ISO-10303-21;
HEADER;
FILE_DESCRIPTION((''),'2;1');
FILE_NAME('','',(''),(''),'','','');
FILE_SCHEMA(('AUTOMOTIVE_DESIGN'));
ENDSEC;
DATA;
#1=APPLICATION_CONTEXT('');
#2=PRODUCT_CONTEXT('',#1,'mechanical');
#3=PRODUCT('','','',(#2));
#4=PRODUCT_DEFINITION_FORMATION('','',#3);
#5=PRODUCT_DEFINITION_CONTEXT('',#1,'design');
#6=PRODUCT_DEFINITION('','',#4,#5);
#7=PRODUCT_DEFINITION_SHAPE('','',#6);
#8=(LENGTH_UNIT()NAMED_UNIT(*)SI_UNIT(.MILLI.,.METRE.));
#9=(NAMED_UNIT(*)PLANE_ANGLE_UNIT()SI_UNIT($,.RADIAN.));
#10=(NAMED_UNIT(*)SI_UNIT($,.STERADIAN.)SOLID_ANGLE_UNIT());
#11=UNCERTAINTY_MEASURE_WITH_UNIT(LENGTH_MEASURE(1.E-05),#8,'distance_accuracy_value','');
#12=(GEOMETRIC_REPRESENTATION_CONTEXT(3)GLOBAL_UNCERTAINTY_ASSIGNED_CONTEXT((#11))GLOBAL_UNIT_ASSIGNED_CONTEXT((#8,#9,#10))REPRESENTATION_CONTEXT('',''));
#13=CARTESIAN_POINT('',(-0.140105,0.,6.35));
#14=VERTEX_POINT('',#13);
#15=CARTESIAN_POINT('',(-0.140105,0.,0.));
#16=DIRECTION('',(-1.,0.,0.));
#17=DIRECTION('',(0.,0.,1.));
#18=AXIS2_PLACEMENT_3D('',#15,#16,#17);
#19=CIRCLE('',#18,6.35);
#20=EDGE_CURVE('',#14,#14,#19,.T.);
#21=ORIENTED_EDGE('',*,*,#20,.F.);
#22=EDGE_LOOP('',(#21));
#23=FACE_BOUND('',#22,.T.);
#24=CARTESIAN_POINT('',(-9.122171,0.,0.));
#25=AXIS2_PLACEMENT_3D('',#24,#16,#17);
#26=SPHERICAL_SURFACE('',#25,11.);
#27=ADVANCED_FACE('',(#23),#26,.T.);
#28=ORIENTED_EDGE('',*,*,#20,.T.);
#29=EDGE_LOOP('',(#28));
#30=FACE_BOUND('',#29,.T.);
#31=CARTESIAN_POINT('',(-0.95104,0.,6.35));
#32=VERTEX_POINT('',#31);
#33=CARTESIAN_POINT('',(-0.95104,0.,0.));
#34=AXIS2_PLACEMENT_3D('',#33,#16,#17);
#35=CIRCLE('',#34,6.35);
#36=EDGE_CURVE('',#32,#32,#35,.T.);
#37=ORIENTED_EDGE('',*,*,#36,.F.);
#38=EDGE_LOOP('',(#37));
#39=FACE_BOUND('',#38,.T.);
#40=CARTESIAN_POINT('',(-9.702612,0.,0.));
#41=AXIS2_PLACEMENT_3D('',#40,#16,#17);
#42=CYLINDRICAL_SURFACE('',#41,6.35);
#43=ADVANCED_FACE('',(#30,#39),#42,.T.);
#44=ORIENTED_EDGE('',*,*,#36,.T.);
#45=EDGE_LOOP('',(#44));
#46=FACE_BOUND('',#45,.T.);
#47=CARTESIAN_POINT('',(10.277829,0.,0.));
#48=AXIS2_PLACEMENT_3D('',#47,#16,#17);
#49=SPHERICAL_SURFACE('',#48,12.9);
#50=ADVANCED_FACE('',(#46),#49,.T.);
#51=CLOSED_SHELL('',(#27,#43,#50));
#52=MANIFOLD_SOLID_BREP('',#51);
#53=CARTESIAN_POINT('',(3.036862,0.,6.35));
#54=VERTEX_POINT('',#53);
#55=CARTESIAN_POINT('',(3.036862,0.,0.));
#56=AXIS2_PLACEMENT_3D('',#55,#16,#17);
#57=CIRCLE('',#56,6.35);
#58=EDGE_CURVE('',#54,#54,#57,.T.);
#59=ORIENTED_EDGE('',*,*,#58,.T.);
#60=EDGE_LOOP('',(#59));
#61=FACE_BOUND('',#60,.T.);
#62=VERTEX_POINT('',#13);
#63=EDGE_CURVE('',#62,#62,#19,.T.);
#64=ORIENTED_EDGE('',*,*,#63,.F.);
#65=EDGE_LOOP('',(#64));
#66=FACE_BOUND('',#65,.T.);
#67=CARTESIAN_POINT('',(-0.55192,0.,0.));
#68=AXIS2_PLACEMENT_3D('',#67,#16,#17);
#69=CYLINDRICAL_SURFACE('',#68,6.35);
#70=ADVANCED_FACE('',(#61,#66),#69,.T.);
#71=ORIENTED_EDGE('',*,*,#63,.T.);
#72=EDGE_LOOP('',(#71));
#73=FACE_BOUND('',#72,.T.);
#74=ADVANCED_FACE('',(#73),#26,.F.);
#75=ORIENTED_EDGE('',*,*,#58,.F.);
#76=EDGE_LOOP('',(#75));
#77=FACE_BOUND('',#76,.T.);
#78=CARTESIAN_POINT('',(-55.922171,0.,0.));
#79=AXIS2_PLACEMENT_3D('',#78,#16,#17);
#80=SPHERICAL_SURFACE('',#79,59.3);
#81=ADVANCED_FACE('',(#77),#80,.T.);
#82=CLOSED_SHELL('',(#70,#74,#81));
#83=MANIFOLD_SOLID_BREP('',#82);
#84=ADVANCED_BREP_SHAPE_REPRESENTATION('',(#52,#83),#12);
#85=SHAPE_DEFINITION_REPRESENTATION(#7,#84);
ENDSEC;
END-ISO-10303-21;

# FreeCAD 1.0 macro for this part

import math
import FreeCAD as App
import Part
import Sketcher

V = App.Vector
Q = App.Units.Quantity

doc = App.newDocument("Part")
body = doc.addObject("PartDesign::Body", "Body")

sketch1 = body.newObject("Sketcher::SketchObject", "Sketch")
sketch1.AttachmentSupport = (doc.getObject("XZ_Plane"), [""])
sketch1.MapMode = "FlatFace"
sketch1.addGeometry([
    Part.ArcOfCircle(Part.Circle(V(10.3, 0, 0), V(0, 0, 1), 12.9), math.radians(180), math.radians(209)),
    Part.LineSegment(V(-2.6, 0, 0), V(1.9, 0, 0)),
    Part.ArcOfCircle(Part.Circle(V(-9.1, 0, 0), V(0, 0, 1), 11), math.radians(-35), math.radians(0)),
    Part.LineSegment(V(-0.1, -6.3, 0), V(-1, -6.3, 0)),
], False)
sketch1.addConstraint([
    Sketcher.Constraint("Coincident", 0, 1, 1, 1),
    Sketcher.Constraint("Coincident", 1, 2, 2, 2),
    Sketcher.Constraint("Coincident", 2, 1, 3, 1),
    Sketcher.Constraint("Coincident", 3, 2, 0, 2),
    Sketcher.Constraint("Horizontal", 1),
    Sketcher.Constraint("Horizontal", 3),
    Sketcher.Constraint("PointOnObject", 0, 3, -1),
    Sketcher.Constraint("PointOnObject", 2, 3, -1),
    Sketcher.Constraint("PointOnObject", 0, 1, -1),
    Sketcher.Constraint("Radius", 2, Q("11 mm")),
    Sketcher.Constraint("Radius", 0, Q("12.9 mm")),
    Sketcher.Constraint("DistanceX", 1, 1, 1, 2, Q("4.5 mm")),
    Sketcher.Constraint("DistanceY", 2, 1, -1, 1, Q("6.35 mm")),
    Sketcher.Constraint("DistanceX", -1, 1, 0, 3, Q("10.277829 mm")),
])
revolution = body.newObject("PartDesign::Revolution", "Revolution")
revolution.Profile = sketch1
revolution.ReferenceAxis = (sketch1, ["H_Axis"])
revolution.Angle = 360
body2 = doc.addObject("PartDesign::Body", "Body001")

sketch2 = body2.newObject("Sketcher::SketchObject", "Sketch001")
sketch2.AttachmentSupport = (doc.getObject("XZ_Plane001"), [""])
sketch2.MapMode = "FlatFace"
sketch2.addGeometry([
    Part.LineSegment(V(3, -6.3, 0), V(-0.1, -6.3, 0)),
    Part.ArcOfCircle(Part.Circle(V(-9.1, 0, 0), V(0, 0, 1), 11), math.radians(-35), math.radians(0)),
    Part.LineSegment(V(1.9, 0, 0), V(3.4, 0, 0)),
    Part.ArcOfCircle(Part.Circle(V(-55.9, 0, 0), V(0, 0, 1), 59.3), math.radians(-6.15), math.radians(0)),
], False)
sketch2.addConstraint([
    Sketcher.Constraint("Coincident", 0, 2, 1, 1),
    Sketcher.Constraint("Coincident", 1, 2, 2, 1),
    Sketcher.Constraint("Coincident", 2, 2, 3, 2),
    Sketcher.Constraint("Coincident", 3, 1, 0, 1),
    Sketcher.Constraint("Horizontal", 0),
    Sketcher.Constraint("Horizontal", 2),
    Sketcher.Constraint("PointOnObject", 1, 3, -1),
    Sketcher.Constraint("PointOnObject", 3, 3, -1),
    Sketcher.Constraint("PointOnObject", 1, 2, -1),
    Sketcher.Constraint("Radius", 1, Q("11 mm")),
    Sketcher.Constraint("Radius", 3, Q("59.3 mm")),
    Sketcher.Constraint("DistanceX", 2, 1, 2, 2, Q("1.5 mm")),
    Sketcher.Constraint("DistanceY", 0, 2, -1, 1, Q("6.35 mm")),
    Sketcher.Constraint("DistanceX", 1, 3, -1, 1, Q("9.122171 mm")),
])
revolution2 = body2.newObject("PartDesign::Revolution", "Revolution001")
revolution2.Profile = sketch2
revolution2.ReferenceAxis = (sketch2, ["H_Axis"])
revolution2.Angle = 360

doc.recompute()
